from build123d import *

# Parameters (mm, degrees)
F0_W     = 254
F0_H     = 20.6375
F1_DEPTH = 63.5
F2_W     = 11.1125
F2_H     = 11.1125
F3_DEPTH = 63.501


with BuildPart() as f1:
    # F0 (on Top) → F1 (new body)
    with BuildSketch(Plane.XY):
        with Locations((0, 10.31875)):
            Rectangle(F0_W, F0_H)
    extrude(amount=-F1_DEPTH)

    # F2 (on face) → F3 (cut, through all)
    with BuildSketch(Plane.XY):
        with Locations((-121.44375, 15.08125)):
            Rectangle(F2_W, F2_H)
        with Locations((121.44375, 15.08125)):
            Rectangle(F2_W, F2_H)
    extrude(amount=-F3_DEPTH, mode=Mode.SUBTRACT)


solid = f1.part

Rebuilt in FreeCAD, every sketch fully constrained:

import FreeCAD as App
import Part
import Sketcher

V = App.Vector
Q = App.Units.Quantity


def add_polygon(sketch, points):
    """Adds a closed chain of lines whose ends are joined by coincident constraints."""
    first, n = sketch.GeometryCount, len(points)
    for a, b in zip(points, points[1:] + points[:1]):
        sketch.addGeometry(Part.LineSegment(App.Vector(*a, 0), App.Vector(*b, 0)), False)
    for i in range(n):
        sketch.addConstraint(Sketcher.Constraint("Coincident", first + i, 2, first + (i + 1) % n, 1))

doc = App.newDocument("Part")
body = doc.addObject("PartDesign::Body", "Body")

sketch1 = body.newObject("Sketcher::SketchObject", "Sketch")
sketch1.AttachmentSupport = (doc.getObject("XY_Plane"), [""])
sketch1.MapMode = "FlatFace"
add_polygon(sketch1, [(-127, 21), (-127, 0), (127, 0), (127, 21)])
sketch1.addConstraint([
    Sketcher.Constraint("Vertical", 0),
    Sketcher.Constraint("Horizontal", 1),
    Sketcher.Constraint("Vertical", 2),
    Sketcher.Constraint("Horizontal", 3),
    Sketcher.Constraint("Symmetric", 0, 2, 1, 2, -1, 1),
    Sketcher.Constraint("DistanceX", 1, 1, 1, 2, Q("10 in")),
    Sketcher.Constraint("DistanceY", 0, 2, 0, 1, Q("0.8125 in")),
])
pad1 = body.newObject("PartDesign::Pad", "Pad")
pad1.Profile = sketch1
pad1.Length = Q("2.5 in")
pad1.Reversed = True

sketch2 = body.newObject("Sketcher::SketchObject", "Sketch001")
sketch2.AttachmentSupport = (doc.getObject("XY_Plane"), [""])
sketch2.MapMode = "FlatFace"
add_polygon(sketch2, [(-127, 21), (-127, 10), (-116, 10), (-116, 21)])
add_polygon(sketch2, [(116, 21), (116, 10), (127, 10), (127, 21)])
sketch2.addConstraint([
    Sketcher.Constraint("Vertical", 0),
    Sketcher.Constraint("Horizontal", 1),
    Sketcher.Constraint("Vertical", 2),
    Sketcher.Constraint("Horizontal", 3),
    Sketcher.Constraint("Vertical", 4),
    Sketcher.Constraint("Horizontal", 5),
    Sketcher.Constraint("Vertical", 6),
    Sketcher.Constraint("Horizontal", 7),
    Sketcher.Constraint("Symmetric", 1, 2, 4, 2, -2),
    Sketcher.Constraint("Symmetric", 3, 2, 6, 2, -2),
    Sketcher.Constraint("Equal", 7, 0),
    Sketcher.Constraint("DistanceX", 0, 2, -1, 1, Q("5 in")),
    Sketcher.Constraint("DistanceX", 1, 1, 1, 2, Q("0.4375 in")),
    Sketcher.Constraint("DistanceY", -1, 1, 0, 2, Q("0.375 in")),
])
pocket1 = body.newObject("PartDesign::Pocket", "Pocket")
pocket1.Profile = sketch2
pocket1.Type = "ThroughAll"

doc.recompute()
